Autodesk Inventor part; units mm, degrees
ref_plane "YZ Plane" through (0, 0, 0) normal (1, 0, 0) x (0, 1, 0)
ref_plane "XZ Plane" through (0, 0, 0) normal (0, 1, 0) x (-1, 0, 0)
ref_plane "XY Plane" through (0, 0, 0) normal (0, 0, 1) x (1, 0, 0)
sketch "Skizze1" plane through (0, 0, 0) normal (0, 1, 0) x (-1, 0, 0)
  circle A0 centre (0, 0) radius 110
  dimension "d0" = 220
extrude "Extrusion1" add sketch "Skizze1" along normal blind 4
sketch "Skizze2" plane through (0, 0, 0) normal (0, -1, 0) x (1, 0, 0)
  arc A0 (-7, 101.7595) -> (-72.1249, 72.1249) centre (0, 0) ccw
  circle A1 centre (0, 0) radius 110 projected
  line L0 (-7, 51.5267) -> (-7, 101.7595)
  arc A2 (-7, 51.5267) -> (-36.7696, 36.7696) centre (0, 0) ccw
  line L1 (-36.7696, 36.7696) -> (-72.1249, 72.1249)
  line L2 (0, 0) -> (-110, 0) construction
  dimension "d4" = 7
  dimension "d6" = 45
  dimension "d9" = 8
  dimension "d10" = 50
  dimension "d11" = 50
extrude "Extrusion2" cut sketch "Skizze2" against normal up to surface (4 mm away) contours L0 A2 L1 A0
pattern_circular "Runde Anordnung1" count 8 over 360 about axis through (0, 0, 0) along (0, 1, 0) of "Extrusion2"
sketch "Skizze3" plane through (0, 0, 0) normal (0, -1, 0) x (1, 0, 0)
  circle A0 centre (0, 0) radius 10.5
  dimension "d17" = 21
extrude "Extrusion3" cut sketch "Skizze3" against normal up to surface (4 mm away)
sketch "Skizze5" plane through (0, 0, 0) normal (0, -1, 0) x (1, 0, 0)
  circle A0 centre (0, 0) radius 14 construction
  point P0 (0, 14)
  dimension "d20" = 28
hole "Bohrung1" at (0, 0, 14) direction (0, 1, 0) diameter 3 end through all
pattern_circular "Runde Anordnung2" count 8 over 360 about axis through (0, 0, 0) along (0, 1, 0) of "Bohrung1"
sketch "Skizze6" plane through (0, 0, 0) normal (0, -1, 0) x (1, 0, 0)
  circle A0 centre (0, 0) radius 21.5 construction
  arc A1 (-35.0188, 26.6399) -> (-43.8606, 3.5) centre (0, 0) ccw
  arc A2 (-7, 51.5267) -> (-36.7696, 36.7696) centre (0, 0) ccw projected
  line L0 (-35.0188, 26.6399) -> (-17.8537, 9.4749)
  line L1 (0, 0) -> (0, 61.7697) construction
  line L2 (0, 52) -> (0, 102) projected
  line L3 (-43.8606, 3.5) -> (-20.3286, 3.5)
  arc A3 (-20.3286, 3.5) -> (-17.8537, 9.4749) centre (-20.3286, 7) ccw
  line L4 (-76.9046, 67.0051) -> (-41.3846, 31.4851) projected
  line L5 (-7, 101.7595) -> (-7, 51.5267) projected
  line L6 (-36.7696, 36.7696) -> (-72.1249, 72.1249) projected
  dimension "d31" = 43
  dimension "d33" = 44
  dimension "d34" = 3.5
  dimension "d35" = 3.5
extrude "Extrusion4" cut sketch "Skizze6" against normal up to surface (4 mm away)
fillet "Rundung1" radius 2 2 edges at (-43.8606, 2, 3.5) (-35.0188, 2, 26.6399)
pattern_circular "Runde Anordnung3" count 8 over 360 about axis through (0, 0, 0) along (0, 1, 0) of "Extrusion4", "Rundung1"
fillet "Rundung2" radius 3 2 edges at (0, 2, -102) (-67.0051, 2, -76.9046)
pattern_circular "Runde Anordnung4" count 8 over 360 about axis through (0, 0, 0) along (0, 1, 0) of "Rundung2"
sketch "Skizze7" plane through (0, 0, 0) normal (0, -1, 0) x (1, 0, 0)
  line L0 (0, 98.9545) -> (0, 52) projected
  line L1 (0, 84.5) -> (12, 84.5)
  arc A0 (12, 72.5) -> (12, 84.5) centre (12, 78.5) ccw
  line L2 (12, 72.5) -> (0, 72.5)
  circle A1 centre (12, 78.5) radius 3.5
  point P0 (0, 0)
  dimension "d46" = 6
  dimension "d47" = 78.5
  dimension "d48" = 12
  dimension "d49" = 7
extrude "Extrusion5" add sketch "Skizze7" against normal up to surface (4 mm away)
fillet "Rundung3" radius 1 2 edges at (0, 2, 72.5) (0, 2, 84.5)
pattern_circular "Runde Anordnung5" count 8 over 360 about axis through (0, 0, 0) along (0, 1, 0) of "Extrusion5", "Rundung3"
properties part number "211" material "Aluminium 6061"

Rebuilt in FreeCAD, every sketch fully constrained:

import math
import FreeCAD as App
import Part
import Sketcher
from FreeCAD import Vector
Q = App.Units.Quantity


def edges_at(feature, points):
    """Names of the edges that pass closest to the given points."""
    edges = feature.Shape.Edges
    near = lambda p: min(range(len(edges)), key=lambda i: edges[i].distToShape(Part.Vertex(*p))[0])
    return sorted({f"Edge{near(p) + 1}" for p in points})

doc = App.newDocument("Part")
body = doc.addObject("PartDesign::Body", "Body")

# Sketch on XZ plane
sketch1 = doc.addObject("Sketcher::SketchObject", "Sketch")
body.addObject(sketch1)
sketch1.AttachmentSupport = (doc.XZ_Plane, [""])
sketch1.MapMode = "FlatFace"
sketch1.addGeometry(Part.Circle(Vector(0, 0, 0), Vector(0, 0, 1), 110), False)
sketch1.addConstraint(Sketcher.Constraint("Coincident", 0, 3, -1, 1))
sketch1.addConstraint(Sketcher.Constraint("Diameter", 0, Q("220 mm")))
pad1 = doc.addObject("PartDesign::Pad", "Pad")
body.addObject(pad1)
pad1.Profile = sketch1
pad1.Length = 4
pad1.Reversed = True

# Sketch on XZ plane
sketch2 = doc.addObject("Sketcher::SketchObject", "Sketch001")
body.addObject(sketch2)
sketch2.AttachmentSupport = (doc.XZ_Plane, [""])
sketch2.MapMode = "FlatFace"
sketch2.addGeometry(Part.LineSegment(Vector(-7, 52, 0), Vector(-7, 102, 0)), False)
sketch2.addGeometry(Part.ArcOfCircle(Part.Circle(Vector(0, 0, 0), Vector(0, 0, 1), 102), math.radians(94), math.radians(135)), False)
sketch2.addGeometry(Part.LineSegment(Vector(-72, 72, 0), Vector(-37, 37, 0)), False)
sketch2.addGeometry(Part.ArcOfCircle(Part.Circle(Vector(0, 0, 0), Vector(0, 0, 1), 52), math.radians(98), math.radians(135)), False)
sketch2.addConstraint(Sketcher.Constraint("Coincident", 0, 2, 1, 1))
sketch2.addConstraint(Sketcher.Constraint("Coincident", 1, 2, 2, 1))
sketch2.addConstraint(Sketcher.Constraint("Coincident", 2, 2, 3, 2))
sketch2.addConstraint(Sketcher.Constraint("Coincident", 3, 1, 0, 1))
sketch2.addConstraint(Sketcher.Constraint("Vertical", 0))
sketch2.addConstraint(Sketcher.Constraint("Coincident", 1, 3, -1, 1))
sketch2.addConstraint(Sketcher.Constraint("Coincident", 3, 3, -1, 1))
sketch2.addConstraint(Sketcher.Constraint("Angle", 2, Q("-45 deg")))
sketch2.addConstraint(Sketcher.Constraint("Distance", 2, Q("50 mm")))
sketch2.addConstraint(Sketcher.Constraint("DistanceX", 0, 2, -1, 1, Q("7 mm")))
sketch2.addConstraint(Sketcher.Constraint("Radius", 1, Q("102 mm")))
sketch2.addConstraint(Sketcher.Constraint("DistanceY", 2, 2, 0, 2, Q("64.99 mm")))
pocket1 = doc.addObject("PartDesign::Pocket", "Pocket")
body.addObject(pocket1)
pocket1.Profile = sketch2
pocket1.Length = 4
doc.recompute()

polarpattern = doc.addObject("PartDesign::PolarPattern", "PolarPattern")
body.addObject(polarpattern)
polarpattern.Originals = [pocket1]
polarpattern.Axis = (doc.Y_Axis, [""])
polarpattern.Angle = 360
polarpattern.Occurrences = 8
body.Tip = polarpattern

# Sketch on XZ plane
sketch3 = doc.addObject("Sketcher::SketchObject", "Sketch002")
body.addObject(sketch3)
sketch3.AttachmentSupport = (doc.XZ_Plane, [""])
sketch3.MapMode = "FlatFace"
sketch3.addGeometry(Part.Circle(Vector(0, 0, 0), Vector(0, 0, 1), 10), False)
sketch3.addConstraint(Sketcher.Constraint("Coincident", 0, 3, -1, 1))
sketch3.addConstraint(Sketcher.Constraint("Diameter", 0, Q("21 mm")))
pocket2 = doc.addObject("PartDesign::Pocket", "Pocket001")
body.addObject(pocket2)
pocket2.Profile = sketch3
pocket2.Length = 4

# Sketch on XZ plane
sketch4 = doc.addObject("Sketcher::SketchObject", "Sketch003")
body.addObject(sketch4)
sketch4.AttachmentSupport = (doc.XZ_Plane, [""])
sketch4.MapMode = "FlatFace"
sketch4.addGeometry(Part.Circle(Vector(0, 14, 0), Vector(0, 0, 1), 1.5), False)
sketch4.addConstraint(Sketcher.Constraint("PointOnObject", 0, 3, -2))
sketch4.addConstraint(Sketcher.Constraint("Diameter", 0, Q("3 mm")))
sketch4.addConstraint(Sketcher.Constraint("DistanceY", -1, 1, 0, 3, Q("14 mm")))
doc.recompute()
hole = doc.addObject("PartDesign::Hole", "Hole")
body.addObject(hole)
hole.Profile = sketch4
hole.ThreadType = "None"
hole.Diameter = 3
hole.DepthType = "ThroughAll"
doc.recompute()

polarpattern2 = doc.addObject("PartDesign::PolarPattern", "PolarPattern001")
body.addObject(polarpattern2)
polarpattern2.Originals = [hole]
polarpattern2.Axis = (doc.Y_Axis, [""])
polarpattern2.Angle = 360
polarpattern2.Occurrences = 8
body.Tip = polarpattern2

# Sketch on XZ plane
sketch5 = doc.addObject("Sketcher::SketchObject", "Sketch004")
body.addObject(sketch5)
sketch5.AttachmentSupport = (doc.XZ_Plane, [""])
sketch5.MapMode = "FlatFace"
sketch5.addGeometry(Part.LineSegment(Vector(-17.9, 9.5, 0), Vector(-35, 26.6, 0)), False)
sketch5.addGeometry(Part.ArcOfCircle(Part.Circle(Vector(0, 0, 0), Vector(0, 0, 1), 44), math.radians(143), math.radians(175)), False)
sketch5.addGeometry(Part.LineSegment(Vector(-43.9, 3.5, 0), Vector(-20.3, 3.5, 0)), False)
sketch5.addGeometry(Part.ArcOfCircle(Part.Circle(Vector(-20.3, 7, 0), Vector(0, 0, 1), 3.5), math.radians(-90), math.radians(45)), False)
sketch5.addConstraint(Sketcher.Constraint("Coincident", 0, 2, 1, 1))
sketch5.addConstraint(Sketcher.Constraint("Coincident", 1, 2, 2, 1))
sketch5.addConstraint(Sketcher.Constraint("Tangent", 2, 2, 3, 1))
sketch5.addConstraint(Sketcher.Constraint("Tangent", 3, 2, 0, 1))
sketch5.addConstraint(Sketcher.Constraint("Horizontal", 2))
sketch5.addConstraint(Sketcher.Constraint("Coincident", 1, 3, -1, 1))
sketch5.addConstraint(Sketcher.Constraint("Radius", 1, Q("44 mm")))
sketch5.addConstraint(Sketcher.Constraint("Radius", 3, Q("3.5 mm")))
sketch5.addConstraint(Sketcher.Constraint("DistanceY", -1, 1, 1, 2, Q("3.5 mm")))
sketch5.addConstraint(Sketcher.Constraint("Angle", 0, Q("135.0002 deg")))
sketch5.addConstraint(Sketcher.Constraint("DistanceX", 2, 1, 2, 2, Q("23.532 mm")))
pocket3 = doc.addObject("PartDesign::Pocket", "Pocket002")
body.addObject(pocket3)
pocket3.Profile = sketch5
pocket3.Length = 4
doc.recompute()

fillet = doc.addObject("PartDesign::Fillet", "Fillet")
body.addObject(fillet)
fillet.Base = (pocket3, edges_at(pocket3, [(-43.861, 2, 3.5), (-35.019, 2, 26.64)]))
fillet.Radius = 2
doc.recompute()

polarpattern3 = doc.addObject("PartDesign::PolarPattern", "PolarPattern002")
body.addObject(polarpattern3)
polarpattern3.Originals = [pocket3, fillet]
polarpattern3.Axis = (doc.Y_Axis, [""])
polarpattern3.Angle = 360
polarpattern3.Occurrences = 8
body.Tip = polarpattern3
doc.recompute()

fillet2 = doc.addObject("PartDesign::Fillet", "Fillet001")
body.addObject(fillet2)
fillet2.Base = (polarpattern3, edges_at(polarpattern3, [(0, 2, -102), (-67.005, 2, -76.905)]))
fillet2.Radius = 3
doc.recompute()

polarpattern4 = doc.addObject("PartDesign::PolarPattern", "PolarPattern003")
body.addObject(polarpattern4)
polarpattern4.Originals = [fillet2]
polarpattern4.Axis = (doc.Y_Axis, [""])
polarpattern4.Angle = 360
polarpattern4.Occurrences = 8
body.Tip = polarpattern4

# Sketch on XZ plane
sketch6 = doc.addObject("Sketcher::SketchObject", "Sketch005")
body.addObject(sketch6)
sketch6.AttachmentSupport = (doc.XZ_Plane, [""])
sketch6.MapMode = "FlatFace"
sketch6.addGeometry(Part.LineSegment(Vector(12, 84.5, 0), Vector(0, 84.5, 0)), False)
sketch6.addGeometry(Part.LineSegment(Vector(0, 84.5, 0), Vector(0, 72.5, 0)), False)
sketch6.addGeometry(Part.LineSegment(Vector(0, 72.5, 0), Vector(12, 72.5, 0)), False)
sketch6.addGeometry(Part.ArcOfCircle(Part.Circle(Vector(12, 78.5, 0), Vector(0, 0, 1), 6), math.radians(-90), math.radians(90)), False)
sketch6.addGeometry(Part.Circle(Vector(12, 78.5, 0), Vector(0, 0, 1), 3.5), False)
sketch6.addConstraint(Sketcher.Constraint("Coincident", 0, 2, 1, 1))
sketch6.addConstraint(Sketcher.Constraint("Coincident", 1, 2, 2, 1))
sketch6.addConstraint(Sketcher.Constraint("Tangent", 2, 2, 3, 1))
sketch6.addConstraint(Sketcher.Constraint("Tangent", 3, 2, 0, 1))
sketch6.addConstraint(Sketcher.Constraint("Horizontal", 0))
sketch6.addConstraint(Sketcher.Constraint("Vertical", 1))
sketch6.addConstraint(Sketcher.Constraint("Horizontal", 2))
sketch6.addConstraint(Sketcher.Constraint("Coincident", 4, 3, 3, 3))
sketch6.addConstraint(Sketcher.Constraint("PointOnObject", 0, 2, -2))
sketch6.addConstraint(Sketcher.Constraint("Equal", 2, 1))
sketch6.addConstraint(Sketcher.Constraint("Diameter", 4, Q("7 mm")))
sketch6.addConstraint(Sketcher.Constraint("Radius", 3, Q("6 mm")))
sketch6.addConstraint(Sketcher.Constraint("DistanceY", -1, 1, 3, 3, Q("78.5 mm")))
pad2 = doc.addObject("PartDesign::Pad", "Pad001")
body.addObject(pad2)
pad2.Profile = sketch6
pad2.Length = 4
pad2.Reversed = True
doc.recompute()

fillet3 = doc.addObject("PartDesign::Fillet", "Fillet002")
body.addObject(fillet3)
fillet3.Base = (pad2, edges_at(pad2, [(0, 2, 72.5), (0, 2, 84.5)]))
fillet3.Radius = 1
doc.recompute()

polarpattern5 = doc.addObject("PartDesign::PolarPattern", "PolarPattern004")
body.addObject(polarpattern5)
polarpattern5.Originals = [pad2, fillet3]
polarpattern5.Axis = (doc.Y_Axis, [""])
polarpattern5.Angle = 360
polarpattern5.Occurrences = 8
body.Tip = polarpattern5

doc.recompute()
